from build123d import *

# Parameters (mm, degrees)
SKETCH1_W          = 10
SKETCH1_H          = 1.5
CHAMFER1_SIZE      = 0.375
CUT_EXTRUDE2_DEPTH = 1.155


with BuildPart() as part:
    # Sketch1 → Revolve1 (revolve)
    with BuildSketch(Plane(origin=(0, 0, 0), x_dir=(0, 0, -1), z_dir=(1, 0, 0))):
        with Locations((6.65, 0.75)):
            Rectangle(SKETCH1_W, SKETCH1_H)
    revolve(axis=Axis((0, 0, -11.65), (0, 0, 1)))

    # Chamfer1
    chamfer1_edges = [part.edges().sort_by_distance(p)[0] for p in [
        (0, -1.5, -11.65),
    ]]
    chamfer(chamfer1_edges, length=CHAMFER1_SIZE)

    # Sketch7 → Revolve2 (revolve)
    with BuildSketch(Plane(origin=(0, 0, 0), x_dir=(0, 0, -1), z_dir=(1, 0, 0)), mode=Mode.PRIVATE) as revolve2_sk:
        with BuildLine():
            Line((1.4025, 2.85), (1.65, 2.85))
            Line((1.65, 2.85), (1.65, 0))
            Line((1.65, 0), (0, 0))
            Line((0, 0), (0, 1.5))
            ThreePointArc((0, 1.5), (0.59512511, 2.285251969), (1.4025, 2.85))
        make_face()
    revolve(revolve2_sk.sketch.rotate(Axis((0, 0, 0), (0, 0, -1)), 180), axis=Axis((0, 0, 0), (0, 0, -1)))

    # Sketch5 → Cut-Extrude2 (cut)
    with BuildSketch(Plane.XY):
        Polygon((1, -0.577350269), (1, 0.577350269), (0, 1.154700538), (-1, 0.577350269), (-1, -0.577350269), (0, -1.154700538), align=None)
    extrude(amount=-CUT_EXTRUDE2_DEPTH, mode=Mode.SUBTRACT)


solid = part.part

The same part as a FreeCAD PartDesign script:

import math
import FreeCAD as App
import Part
import Sketcher
Q = App.Units.Quantity


def edges_at(feature, points):
    """Names of the edges that pass closest to the given points."""
    edges = feature.Shape.Edges
    near = lambda p: min(range(len(edges)), key=lambda i: edges[i].distToShape(Part.Vertex(*p))[0])
    return sorted({f"Edge{near(p) + 1}" for p in points})

doc = App.newDocument("Part")
params = doc.addObject("Spreadsheet::Sheet", "Params")
for row, (alias, value) in enumerate([
    ("sketch1_height", "10 mm"),
    ("sketch1_width", "1.5 mm"),
    ("revolution_angle", "360 deg"),
    ("chamfer_size", "0.375 mm"),
    ("sketch2_width", "1.5 mm"),
    ("sketch2_width2", "2.85 mm"),
    ("sketch2_height", "1.65 mm"),
    ("revolution2_angle", "360 deg"),
    ("pocket1_length", "1.155 mm"),
], start=1):
    params.set(f"A{row}", alias)
    params.set(f"B{row}", "=" + value)
    params.setAlias(f"B{row}", alias)

body = doc.addObject("PartDesign::Body", "Body")

# Sketch on YZ plane
sketch1 = body.newObject("Sketcher::SketchObject", "Sketch")
sketch1.AttachmentSupport = (doc.getObject("YZ_Plane"), [""])
sketch1.MapMode = "FlatFace"
sketch1.addGeometry([
    Part.LineSegment(App.Vector(1.5, -1.6, 0), App.Vector(0, -1.6, 0)),
    Part.LineSegment(App.Vector(0, -1.6, 0), App.Vector(0, -11.7, 0)),
    Part.LineSegment(App.Vector(0, -11.7, 0), App.Vector(1.5, -11.7, 0)),
    Part.LineSegment(App.Vector(1.5, -11.7, 0), App.Vector(1.5, -1.6, 0)),
], False)
sketch1.addConstraint([
    Sketcher.Constraint("Coincident", 0, 2, 1, 1),
    Sketcher.Constraint("Coincident", 1, 2, 2, 1),
    Sketcher.Constraint("Coincident", 2, 2, 3, 1),
    Sketcher.Constraint("Coincident", 3, 2, 0, 1),
    Sketcher.Constraint("Horizontal", 0),
    Sketcher.Constraint("Vertical", 1),
    Sketcher.Constraint("Horizontal", 2),
    Sketcher.Constraint("Vertical", 3),
    Sketcher.Constraint("PointOnObject", 0, 2, -2),
    Sketcher.Constraint("DistanceY", 1, 2, 1, 1, Q("10 mm")),
    Sketcher.Constraint("DistanceX", 0, 2, 0, 1, Q("1.5 mm")),
    Sketcher.Constraint("DistanceY", 0, 2, -1, 1, Q("1.65 mm")),
])
sketch1.setExpression("Constraints[9]", "Params.sketch1_height")
sketch1.setExpression("Constraints[10]", "Params.sketch1_width")
revolution = body.newObject("PartDesign::Revolution", "Revolution")
revolution.Profile = sketch1
revolution.ReferenceAxis = (sketch1, ["V_Axis"])
revolution.setExpression("Angle", "Params.revolution_angle")
doc.recompute()

chamfer = body.newObject("PartDesign::Chamfer", "Chamfer")
chamfer.Base = (revolution, edges_at(revolution, [(0, -1.5, -11.65)]))
chamfer.setExpression("Size", "Params.chamfer_size")

# Sketch on YZ plane
sketch2 = body.newObject("Sketcher::SketchObject", "Sketch001")
sketch2.AttachmentSupport = (doc.getObject("YZ_Plane"), [""])
sketch2.MapMode = "FlatFace"
sketch2.addGeometry([
    Part.LineSegment(App.Vector(2.85, -1.65, 0), App.Vector(2.85, -1.4, 0)),  # 0
    Part.ArcOfCircle(Part.Circle(App.Vector(0, -2.79, 0), App.Vector(0, 0, 1), 3.17), math.radians(26), math.radians(62)),  # 1
    Part.LineSegment(App.Vector(1.5, 0, 0), App.Vector(0, 0, 0)),  # 2
    Part.LineSegment(App.Vector(0, 0, 0), App.Vector(0, -1.65, 0)),  # 3
    Part.LineSegment(App.Vector(0, -1.65, 0), App.Vector(2.85, -1.65, 0)),  # 4
], False)
sketch2.addConstraint([
    Sketcher.Constraint("Coincident", 0, 2, 1, 1),
    Sketcher.Constraint("Coincident", 1, 2, 2, 1),
    Sketcher.Constraint("Coincident", 2, 2, 3, 1),
    Sketcher.Constraint("Coincident", 3, 2, 4, 1),
    Sketcher.Constraint("Coincident", 4, 2, 0, 1),
    Sketcher.Constraint("Vertical", 0),
    Sketcher.Constraint("Horizontal", 2),
    Sketcher.Constraint("Vertical", 3),
    Sketcher.Constraint("Horizontal", 4),
    Sketcher.Constraint("Coincident", 2, 2, -1, 1),
    Sketcher.Constraint("PointOnObject", 1, 3, -2),
    Sketcher.Constraint("DistanceX", 2, 2, 2, 1, Q("1.5 mm")),
    Sketcher.Constraint("DistanceX", 4, 1, 4, 2, Q("2.85 mm")),
    Sketcher.Constraint("DistanceY", 3, 2, 3, 1, Q("1.65 mm")),
    Sketcher.Constraint("DistanceY", 0, 1, 0, 2, Q("0.2475 mm")),
])
sketch2.setExpression("Constraints[11]", "Params.sketch2_width")
sketch2.setExpression("Constraints[12]", "Params.sketch2_width2")
sketch2.setExpression("Constraints[13]", "Params.sketch2_height")
revolution2 = body.newObject("PartDesign::Revolution", "Revolution001")
revolution2.Profile = sketch2
revolution2.ReferenceAxis = (sketch2, ["V_Axis"])
revolution2.setExpression("Angle", "Params.revolution2_angle")

# Sketch on XY plane
sketch3 = body.newObject("Sketcher::SketchObject", "Sketch002")
sketch3.AttachmentSupport = (doc.getObject("XY_Plane"), [""])
sketch3.MapMode = "FlatFace"
sketch3.addGeometry([
    Part.LineSegment(App.Vector(1, -0.6, 0), App.Vector(1, 0.6, 0)),  # 0
    Part.LineSegment(App.Vector(1, 0.6, 0), App.Vector(0, 1.2, 0)),  # 1
    Part.LineSegment(App.Vector(0, 1.2, 0), App.Vector(-1, 0.6, 0)),  # 2
    Part.LineSegment(App.Vector(-1, 0.6, 0), App.Vector(-1, -0.6, 0)),  # 3
    Part.LineSegment(App.Vector(-1, -0.6, 0), App.Vector(0, -1.2, 0)),  # 4
    Part.LineSegment(App.Vector(0, -1.2, 0), App.Vector(1, -0.6, 0)),  # 5
], False)
sketch3.addConstraint([
    Sketcher.Constraint("Coincident", 0, 2, 1, 1),
    Sketcher.Constraint("Coincident", 1, 2, 2, 1),
    Sketcher.Constraint("Coincident", 2, 2, 3, 1),
    Sketcher.Constraint("Coincident", 3, 2, 4, 1),
    Sketcher.Constraint("Coincident", 4, 2, 5, 1),
    Sketcher.Constraint("Coincident", 5, 2, 0, 1),
    Sketcher.Constraint("Vertical", 0),
    Sketcher.Constraint("Vertical", 3),
    Sketcher.Constraint("Symmetric", 0, 2, 3, 2, -1, 1),
    Sketcher.Constraint("Symmetric", 1, 2, 4, 2, -1, 1),
    Sketcher.Constraint("PointOnObject", 1, 2, -2),
    Sketcher.Constraint("Parallel", 2, 5),
    Sketcher.Constraint("Horizontal", 0, 2, 2, 2),
    Sketcher.Constraint("Angle", 1, Q("150 deg")),
    Sketcher.Constraint("DistanceX", -1, 1, 0, 2, Q("1 mm")),
    Sketcher.Constraint("DistanceY", 0, 1, 0, 2, Q("1.154701 mm")),
])
pocket1 = body.newObject("PartDesign::Pocket", "Pocket")
pocket1.Profile = sketch3
pocket1.setExpression("Length", "Params.pocket1_length")

doc.recompute()
